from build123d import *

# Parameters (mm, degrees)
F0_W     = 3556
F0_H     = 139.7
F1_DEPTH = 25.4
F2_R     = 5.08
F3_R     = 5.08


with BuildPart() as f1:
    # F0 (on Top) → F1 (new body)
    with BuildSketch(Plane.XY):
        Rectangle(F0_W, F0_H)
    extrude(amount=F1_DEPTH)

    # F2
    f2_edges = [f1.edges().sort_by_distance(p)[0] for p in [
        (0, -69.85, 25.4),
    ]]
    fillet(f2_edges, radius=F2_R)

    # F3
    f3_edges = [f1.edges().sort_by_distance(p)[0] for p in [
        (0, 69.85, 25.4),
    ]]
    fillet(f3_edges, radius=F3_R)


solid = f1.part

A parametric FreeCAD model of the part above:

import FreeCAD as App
import Part
import Sketcher

V = App.Vector
Q = App.Units.Quantity


def edges_at(feature, points):
    """Names of the edges that pass closest to the given points."""
    edges = feature.Shape.Edges
    near = lambda p: min(range(len(edges)), key=lambda i: edges[i].distToShape(Part.Vertex(*p))[0])
    return sorted({f"Edge{near(p) + 1}" for p in points})


def add_polygon(sketch, points):
    """Adds a closed chain of lines whose ends are joined by coincident constraints."""
    first, n = sketch.GeometryCount, len(points)
    for a, b in zip(points, points[1:] + points[:1]):
        sketch.addGeometry(Part.LineSegment(App.Vector(*a, 0), App.Vector(*b, 0)), False)
    for i in range(n):
        sketch.addConstraint(Sketcher.Constraint("Coincident", first + i, 2, first + (i + 1) % n, 1))

doc = App.newDocument("Part")
body = doc.addObject("PartDesign::Body", "Body")

# Sketch on XY plane
sketch1 = body.newObject("Sketcher::SketchObject", "Sketch")
sketch1.AttachmentSupport = (doc.getObject("XY_Plane"), [""])
sketch1.MapMode = "FlatFace"
add_polygon(sketch1, [(-1778, 69.85), (-1778, -69.85), (1778, -69.85), (1778, 69.85)])  # lines 0-3
sketch1.addConstraint(Sketcher.Constraint("Vertical", 0))
sketch1.addConstraint(Sketcher.Constraint("Horizontal", 1))
sketch1.addConstraint(Sketcher.Constraint("Vertical", 2))
sketch1.addConstraint(Sketcher.Constraint("Horizontal", 3))
sketch1.addConstraint(Sketcher.Constraint("Symmetric", 0, 2, 2, 2, -1, 1))
sketch1.addConstraint(Sketcher.Constraint("DistanceX", 1, 1, 1, 2, Q("140 in")))
sketch1.addConstraint(Sketcher.Constraint("DistanceY", 0, 2, 0, 1, Q("5.5 in")))
pad1 = body.newObject("PartDesign::Pad", "Pad")
pad1.Profile = sketch1
pad1.Length = Q("1 in")
doc.recompute()

fillet = body.newObject("PartDesign::Fillet", "Fillet")
fillet.Base = (pad1, edges_at(pad1, [(0, -69.85, 25.4)]))
fillet.Radius = Q("0.2 in")
doc.recompute()

fillet2 = body.newObject("PartDesign::Fillet", "Fillet001")
fillet2.Base = (fillet, edges_at(fillet, [(0, 69.85, 25.4)]))
fillet2.Radius = Q("0.2 in")

doc.recompute()
